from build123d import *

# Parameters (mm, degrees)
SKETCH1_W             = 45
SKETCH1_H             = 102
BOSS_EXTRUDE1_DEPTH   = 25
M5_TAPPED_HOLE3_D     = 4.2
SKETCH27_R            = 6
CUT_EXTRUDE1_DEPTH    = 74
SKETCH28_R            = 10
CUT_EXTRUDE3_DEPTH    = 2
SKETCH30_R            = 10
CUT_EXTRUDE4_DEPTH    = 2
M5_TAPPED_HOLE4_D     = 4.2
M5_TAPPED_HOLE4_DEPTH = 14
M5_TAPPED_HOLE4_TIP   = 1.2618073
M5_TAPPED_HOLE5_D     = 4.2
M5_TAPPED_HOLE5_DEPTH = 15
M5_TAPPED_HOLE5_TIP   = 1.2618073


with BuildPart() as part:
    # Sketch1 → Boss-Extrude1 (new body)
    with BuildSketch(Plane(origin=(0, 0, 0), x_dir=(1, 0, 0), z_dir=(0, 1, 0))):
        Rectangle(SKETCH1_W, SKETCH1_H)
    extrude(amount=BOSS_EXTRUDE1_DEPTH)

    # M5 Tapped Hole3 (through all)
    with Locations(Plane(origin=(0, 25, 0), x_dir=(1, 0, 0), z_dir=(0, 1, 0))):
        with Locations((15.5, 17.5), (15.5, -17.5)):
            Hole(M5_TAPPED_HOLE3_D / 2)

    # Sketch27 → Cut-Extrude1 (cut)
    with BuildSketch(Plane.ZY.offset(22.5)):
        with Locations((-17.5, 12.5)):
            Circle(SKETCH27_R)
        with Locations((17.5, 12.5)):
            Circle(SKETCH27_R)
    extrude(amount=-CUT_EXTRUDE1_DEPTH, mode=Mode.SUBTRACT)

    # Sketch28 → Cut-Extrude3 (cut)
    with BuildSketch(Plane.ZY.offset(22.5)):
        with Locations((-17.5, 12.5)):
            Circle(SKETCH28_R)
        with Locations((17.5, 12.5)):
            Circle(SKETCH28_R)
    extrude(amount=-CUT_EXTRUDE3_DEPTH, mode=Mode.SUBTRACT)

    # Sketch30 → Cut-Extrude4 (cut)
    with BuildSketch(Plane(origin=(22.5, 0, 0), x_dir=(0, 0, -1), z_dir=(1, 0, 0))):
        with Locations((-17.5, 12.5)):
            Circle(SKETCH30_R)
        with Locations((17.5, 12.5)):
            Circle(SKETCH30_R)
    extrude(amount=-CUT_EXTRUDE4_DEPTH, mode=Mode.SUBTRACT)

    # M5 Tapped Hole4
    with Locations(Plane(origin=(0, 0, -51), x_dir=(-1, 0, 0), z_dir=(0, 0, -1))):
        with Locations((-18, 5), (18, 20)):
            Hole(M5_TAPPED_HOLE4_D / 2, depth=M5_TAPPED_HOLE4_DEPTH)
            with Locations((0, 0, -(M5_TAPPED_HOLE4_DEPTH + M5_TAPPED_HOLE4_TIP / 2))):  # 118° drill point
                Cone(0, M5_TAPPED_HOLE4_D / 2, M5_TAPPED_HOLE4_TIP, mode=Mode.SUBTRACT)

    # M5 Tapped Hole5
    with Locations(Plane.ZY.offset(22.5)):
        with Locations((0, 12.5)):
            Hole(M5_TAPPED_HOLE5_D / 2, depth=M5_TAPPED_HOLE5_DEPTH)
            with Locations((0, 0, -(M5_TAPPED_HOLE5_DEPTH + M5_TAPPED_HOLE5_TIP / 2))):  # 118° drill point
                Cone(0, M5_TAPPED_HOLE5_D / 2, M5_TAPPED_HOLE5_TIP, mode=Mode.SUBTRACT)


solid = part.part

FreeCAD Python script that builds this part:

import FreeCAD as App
import Part
import Sketcher
Q = App.Units.Quantity


def add_polygon(sketch, points):
    """Adds a closed chain of lines whose ends are joined by coincident constraints."""
    first, n = sketch.GeometryCount, len(points)
    for a, b in zip(points, points[1:] + points[:1]):
        sketch.addGeometry(Part.LineSegment(App.Vector(*a, 0), App.Vector(*b, 0)), False)
    for i in range(n):
        sketch.addConstraint(Sketcher.Constraint("Coincident", first + i, 2, first + (i + 1) % n, 1))

doc = App.newDocument("Part")
body = doc.addObject("PartDesign::Body", "Body")

# Sketch on XZ plane
sketch1 = body.newObject("Sketcher::SketchObject", "Sketch")
sketch1.AttachmentSupport = (doc.getObject("XZ_Plane"), [""])
sketch1.MapMode = "FlatFace"
add_polygon(sketch1, [(-22, -51), (-22, 51), (22, 51), (22, -51)])  # lines 0-3
sketch1.addConstraint(Sketcher.Constraint("Vertical", 0))
sketch1.addConstraint(Sketcher.Constraint("Horizontal", 1))
sketch1.addConstraint(Sketcher.Constraint("Vertical", 2))
sketch1.addConstraint(Sketcher.Constraint("Horizontal", 3))
sketch1.addConstraint(Sketcher.Constraint("Symmetric", 0, 2, 2, 2, -1, 1))
sketch1.addConstraint(Sketcher.Constraint("DistanceX", 1, 1, 1, 2, Q("45 mm")))
sketch1.addConstraint(Sketcher.Constraint("DistanceY", 0, 1, 0, 2, Q("102 mm")))
pad1 = body.newObject("PartDesign::Pad", "Pad")
pad1.Profile = sketch1
pad1.Length = 25
pad1.Reversed = True

# Sketch on XZ plane
sketch2 = body.newObject("Sketcher::SketchObject", "Sketch001")
sketch2.AttachmentSupport = (doc.getObject("XZ_Plane"), [""])
sketch2.MapMode = "FlatFace"
sketch2.AttachmentOffset = App.Placement(App.Vector(0, 0, -25), App.Rotation())
sketch2.addGeometry(Part.Circle(App.Vector(15.5, -17.5, 0), App.Vector(0, 0, 1), 2.1), False)
sketch2.addGeometry(Part.Circle(App.Vector(15.5, 17.5, 0), App.Vector(0, 0, 1), 2.1), False)
sketch2.addConstraint(Sketcher.Constraint("Equal", 0, 1))
sketch2.addConstraint(Sketcher.Constraint("Symmetric", 0, 3, 1, 3, -1))
sketch2.addConstraint(Sketcher.Constraint("Diameter", 0, Q("4.2 mm")))
sketch2.addConstraint(Sketcher.Constraint("DistanceY", 0, 3, 1, 3, Q("35 mm")))
sketch2.addConstraint(Sketcher.Constraint("DistanceX", -1, 1, 0, 3, Q("15.5 mm")))
doc.recompute()
hole = body.newObject("PartDesign::Hole", "Hole")
hole.Profile = sketch2
hole.ThreadType = "None"
hole.Diameter = 4.2
hole.DepthType = "ThroughAll"
hole.Reversed = True

# Sketch on YZ plane
sketch3 = body.newObject("Sketcher::SketchObject", "Sketch002")
sketch3.AttachmentSupport = (doc.getObject("YZ_Plane"), [""])
sketch3.MapMode = "FlatFace"
sketch3.AttachmentOffset = App.Placement(App.Vector(0, 0, -22.5), App.Rotation())
sketch3.addGeometry(Part.Circle(App.Vector(12, -18, 0), App.Vector(0, 0, 1), 6), False)
sketch3.addGeometry(Part.Circle(App.Vector(12, 18, 0), App.Vector(0, 0, 1), 6), False)
sketch3.addConstraint(Sketcher.Constraint("Equal", 0, 1))
sketch3.addConstraint(Sketcher.Constraint("Symmetric", 0, 3, 1, 3, -1))
sketch3.addConstraint(Sketcher.Constraint("Diameter", 0, Q("12 mm")))
sketch3.addConstraint(Sketcher.Constraint("DistanceY", 0, 3, 1, 3, Q("35 mm")))
sketch3.addConstraint(Sketcher.Constraint("DistanceX", -1, 1, 0, 3, Q("12.5 mm")))
pocket1 = body.newObject("PartDesign::Pocket", "Pocket")
pocket1.Profile = sketch3
pocket1.Length = 74
pocket1.Reversed = True

# Sketch on YZ plane
sketch4 = body.newObject("Sketcher::SketchObject", "Sketch003")
sketch4.AttachmentSupport = (doc.getObject("YZ_Plane"), [""])
sketch4.MapMode = "FlatFace"
sketch4.AttachmentOffset = App.Placement(App.Vector(0, 0, -22.5), App.Rotation())
sketch4.addGeometry(Part.Circle(App.Vector(12, -18, 0), App.Vector(0, 0, 1), 10), False)
sketch4.addGeometry(Part.Circle(App.Vector(12, 18, 0), App.Vector(0, 0, 1), 10), False)
sketch4.addConstraint(Sketcher.Constraint("Equal", 0, 1))
sketch4.addConstraint(Sketcher.Constraint("Symmetric", 0, 3, 1, 3, -1))
sketch4.addConstraint(Sketcher.Constraint("Diameter", 0, Q("20 mm")))
sketch4.addConstraint(Sketcher.Constraint("DistanceY", 0, 3, 1, 3, Q("35 mm")))
sketch4.addConstraint(Sketcher.Constraint("DistanceX", -1, 1, 0, 3, Q("12.5 mm")))
pocket2 = body.newObject("PartDesign::Pocket", "Pocket001")
pocket2.Profile = sketch4
pocket2.Length = 2
pocket2.Reversed = True

# Sketch on YZ plane
sketch5 = body.newObject("Sketcher::SketchObject", "Sketch004")
sketch5.AttachmentSupport = (doc.getObject("YZ_Plane"), [""])
sketch5.MapMode = "FlatFace"
sketch5.AttachmentOffset = App.Placement(App.Vector(0, 0, 22.5), App.Rotation())
sketch5.addGeometry(Part.Circle(App.Vector(12, 18, 0), App.Vector(0, 0, 1), 10), False)
sketch5.addGeometry(Part.Circle(App.Vector(12, -18, 0), App.Vector(0, 0, 1), 10), False)
sketch5.addConstraint(Sketcher.Constraint("Equal", 0, 1))
sketch5.addConstraint(Sketcher.Constraint("Symmetric", 0, 3, 1, 3, -1))
sketch5.addConstraint(Sketcher.Constraint("Diameter", 0, Q("20 mm")))
sketch5.addConstraint(Sketcher.Constraint("DistanceY", 1, 3, 0, 3, Q("35 mm")))
sketch5.addConstraint(Sketcher.Constraint("DistanceX", -1, 1, 0, 3, Q("12.5 mm")))
pocket3 = body.newObject("PartDesign::Pocket", "Pocket002")
pocket3.Profile = sketch5
pocket3.Length = 2

# Sketch on XY plane
sketch6 = body.newObject("Sketcher::SketchObject", "Sketch005")
sketch6.AttachmentSupport = (doc.getObject("XY_Plane"), [""])
sketch6.MapMode = "FlatFace"
sketch6.AttachmentOffset = App.Placement(App.Vector(0, 0, -51), App.Rotation())
sketch6.addGeometry(Part.Circle(App.Vector(18, 5, 0), App.Vector(0, 0, 1), 2.1), False)
sketch6.addGeometry(Part.Circle(App.Vector(-18, 20, 0), App.Vector(0, 0, 1), 2.1), False)
sketch6.addConstraint(Sketcher.Constraint("Equal", 0, 1))
sketch6.addConstraint(Sketcher.Constraint("Diameter", 0, Q("4.2 mm")))
sketch6.addConstraint(Sketcher.Constraint("DistanceX", -1, 1, 0, 3, Q("18 mm")))
sketch6.addConstraint(Sketcher.Constraint("DistanceY", -1, 1, 0, 3, Q("5 mm")))
sketch6.addConstraint(Sketcher.Constraint("DistanceX", 1, 3, -1, 1, Q("18 mm")))
sketch6.addConstraint(Sketcher.Constraint("DistanceY", -1, 1, 1, 3, Q("20 mm")))
doc.recompute()
hole2 = body.newObject("PartDesign::Hole", "Hole001")
hole2.Profile = sketch6
hole2.ThreadType = "None"
hole2.Diameter = 4.2
hole2.DepthType = "Dimension"
hole2.Depth = 14
hole2.DrillPoint = "Angled"
hole2.DrillPointAngle = 118
hole2.Reversed = True

# Sketch on YZ plane
sketch7 = body.newObject("Sketcher::SketchObject", "Sketch006")
sketch7.AttachmentSupport = (doc.getObject("YZ_Plane"), [""])
sketch7.MapMode = "FlatFace"
sketch7.AttachmentOffset = App.Placement(App.Vector(0, 0, -22.5), App.Rotation())
sketch7.addGeometry(Part.Circle(App.Vector(12.5, 0, 0), App.Vector(0, 0, 1), 2.1), False)
sketch7.addConstraint(Sketcher.Constraint("PointOnObject", 0, 3, -1))
sketch7.addConstraint(Sketcher.Constraint("Diameter", 0, Q("4.2 mm")))
sketch7.addConstraint(Sketcher.Constraint("DistanceX", -1, 1, 0, 3, Q("12.5 mm")))
doc.recompute()
hole3 = body.newObject("PartDesign::Hole", "Hole002")
hole3.Profile = sketch7
hole3.ThreadType = "None"
hole3.Diameter = 4.2
hole3.DepthType = "Dimension"
hole3.Depth = 15
hole3.DrillPoint = "Angled"
hole3.DrillPointAngle = 118
hole3.Reversed = True

doc.recompute()
